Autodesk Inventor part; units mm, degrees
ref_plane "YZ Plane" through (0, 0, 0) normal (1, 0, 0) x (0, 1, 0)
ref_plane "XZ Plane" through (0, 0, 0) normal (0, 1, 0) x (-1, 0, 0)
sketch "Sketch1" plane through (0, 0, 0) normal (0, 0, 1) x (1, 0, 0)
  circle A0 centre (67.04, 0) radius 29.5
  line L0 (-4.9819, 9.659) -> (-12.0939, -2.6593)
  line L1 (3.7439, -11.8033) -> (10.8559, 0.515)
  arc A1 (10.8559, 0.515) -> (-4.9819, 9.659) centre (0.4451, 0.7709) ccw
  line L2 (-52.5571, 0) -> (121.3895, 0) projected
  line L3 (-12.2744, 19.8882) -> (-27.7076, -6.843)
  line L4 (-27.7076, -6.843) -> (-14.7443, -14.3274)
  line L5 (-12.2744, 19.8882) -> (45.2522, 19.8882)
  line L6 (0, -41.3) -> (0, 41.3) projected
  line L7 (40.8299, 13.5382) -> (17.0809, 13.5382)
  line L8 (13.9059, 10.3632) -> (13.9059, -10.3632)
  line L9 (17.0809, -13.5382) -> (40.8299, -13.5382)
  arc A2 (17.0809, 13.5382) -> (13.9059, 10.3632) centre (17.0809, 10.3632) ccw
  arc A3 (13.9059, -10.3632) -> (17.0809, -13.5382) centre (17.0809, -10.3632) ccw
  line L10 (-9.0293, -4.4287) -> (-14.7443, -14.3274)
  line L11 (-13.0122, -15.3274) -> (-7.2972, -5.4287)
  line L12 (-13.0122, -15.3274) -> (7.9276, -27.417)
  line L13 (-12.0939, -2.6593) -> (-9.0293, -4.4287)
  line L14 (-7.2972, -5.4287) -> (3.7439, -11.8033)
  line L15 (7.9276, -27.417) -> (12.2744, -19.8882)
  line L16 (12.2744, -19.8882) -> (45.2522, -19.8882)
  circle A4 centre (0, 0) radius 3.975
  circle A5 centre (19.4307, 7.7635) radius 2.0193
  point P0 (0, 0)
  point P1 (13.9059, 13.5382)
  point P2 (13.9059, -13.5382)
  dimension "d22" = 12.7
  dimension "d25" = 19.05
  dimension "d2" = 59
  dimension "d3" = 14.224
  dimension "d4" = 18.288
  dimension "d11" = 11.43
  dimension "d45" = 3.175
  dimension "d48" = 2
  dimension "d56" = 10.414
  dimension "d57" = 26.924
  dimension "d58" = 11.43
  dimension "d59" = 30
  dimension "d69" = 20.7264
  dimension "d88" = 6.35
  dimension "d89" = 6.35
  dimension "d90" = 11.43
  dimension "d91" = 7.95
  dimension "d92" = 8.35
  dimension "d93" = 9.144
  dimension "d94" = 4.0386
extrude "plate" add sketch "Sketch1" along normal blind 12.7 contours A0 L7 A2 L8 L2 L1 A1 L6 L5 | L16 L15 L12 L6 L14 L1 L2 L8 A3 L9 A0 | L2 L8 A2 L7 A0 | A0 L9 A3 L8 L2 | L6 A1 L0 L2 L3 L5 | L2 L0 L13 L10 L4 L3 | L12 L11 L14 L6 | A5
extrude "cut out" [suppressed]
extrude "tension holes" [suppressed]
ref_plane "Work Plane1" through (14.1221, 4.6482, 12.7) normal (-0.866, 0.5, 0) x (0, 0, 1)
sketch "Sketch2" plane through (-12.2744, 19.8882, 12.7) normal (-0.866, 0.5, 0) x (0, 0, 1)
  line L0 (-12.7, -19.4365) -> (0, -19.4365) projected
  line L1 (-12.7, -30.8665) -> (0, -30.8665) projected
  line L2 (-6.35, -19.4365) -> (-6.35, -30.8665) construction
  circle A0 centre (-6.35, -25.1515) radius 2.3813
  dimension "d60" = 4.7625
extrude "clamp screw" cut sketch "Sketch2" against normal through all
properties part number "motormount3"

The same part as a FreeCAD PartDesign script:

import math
import FreeCAD as App
import Part
import Sketcher
from FreeCAD import Vector
Q = App.Units.Quantity

doc = App.newDocument("Part")
body = doc.addObject("PartDesign::Body", "Body")

sketch1 = body.newObject("Sketcher::SketchObject", "Sketch")
sketch1.AttachmentSupport = (doc.getObject("XY_Plane"), [""])
sketch1.MapMode = "FlatFace"
sketch1.addGeometry(Part.LineSegment(Vector(45.2522, 19.8882, 0), Vector(-12.2744, 19.8882, 0)), False)
sketch1.addGeometry(Part.LineSegment(Vector(-12.2744, 19.8882, 0), Vector(-27.7076, -6.843, 0)), False)
sketch1.addGeometry(Part.LineSegment(Vector(-27.7076, -6.843, 0), Vector(-14.7443, -14.3274, 0)), False)
sketch1.addGeometry(Part.LineSegment(Vector(-14.7443, -14.3274, 0), Vector(-9.0293, -4.4287, 0)), False)
sketch1.addGeometry(Part.LineSegment(Vector(-9.0293, -4.4287, 0), Vector(-12.0939, -2.6593, 0)), False)
sketch1.addGeometry(Part.LineSegment(Vector(-12.0939, -2.6593, 0), Vector(-4.9819, 9.659, 0)), False)
sketch1.addGeometry(Part.ArcOfCircle(Part.Circle(Vector(0.4451, 0.7709, 0), Vector(0, 0, 1), 10.413945), math.radians(-1.408061), math.radians(121.407892)), False)
sketch1.addGeometry(Part.LineSegment(Vector(10.8559, 0.515, 0), Vector(3.7439, -11.8033, 0)), False)
sketch1.addGeometry(Part.LineSegment(Vector(3.7439, -11.8033, 0), Vector(-7.2972, -5.4287, 0)), False)
sketch1.addGeometry(Part.LineSegment(Vector(-7.2972, -5.4287, 0), Vector(-13.0122, -15.3274, 0)), False)
sketch1.addGeometry(Part.LineSegment(Vector(-13.0122, -15.3274, 0), Vector(7.9276, -27.417, 0)), False)
sketch1.addGeometry(Part.LineSegment(Vector(7.9276, -27.417, 0), Vector(12.2744, -19.8882, 0)), False)
sketch1.addGeometry(Part.LineSegment(Vector(12.2744, -19.8882, 0), Vector(45.2522, -19.8882, 0)), False)
sketch1.addGeometry(Part.ArcOfCircle(Part.Circle(Vector(67.04, 0, 0), Vector(0, 0, 1), 29.5), math.radians(137.609746), math.radians(222.390254)), False)
sketch1.addConstraint(Sketcher.Constraint("Coincident", 0, 2, 1, 1))
sketch1.addConstraint(Sketcher.Constraint("Coincident", 1, 2, 2, 1))
sketch1.addConstraint(Sketcher.Constraint("Coincident", 2, 2, 3, 1))
sketch1.addConstraint(Sketcher.Constraint("Coincident", 3, 2, 4, 1))
sketch1.addConstraint(Sketcher.Constraint("Coincident", 4, 2, 5, 1))
sketch1.addConstraint(Sketcher.Constraint("Coincident", 5, 2, 6, 2))
sketch1.addConstraint(Sketcher.Constraint("Coincident", 6, 1, 7, 1))
sketch1.addConstraint(Sketcher.Constraint("Coincident", 7, 2, 8, 1))
sketch1.addConstraint(Sketcher.Constraint("Coincident", 8, 2, 9, 1))
sketch1.addConstraint(Sketcher.Constraint("Coincident", 9, 2, 10, 1))
sketch1.addConstraint(Sketcher.Constraint("Coincident", 10, 2, 11, 1))
sketch1.addConstraint(Sketcher.Constraint("Coincident", 11, 2, 12, 1))
sketch1.addConstraint(Sketcher.Constraint("Coincident", 12, 2, 13, 2))
sketch1.addConstraint(Sketcher.Constraint("Coincident", 13, 1, 0, 1))
sketch1.addConstraint(Sketcher.Constraint("Horizontal", 0))
sketch1.addConstraint(Sketcher.Constraint("Horizontal", 12))
sketch1.addConstraint(Sketcher.Constraint("Symmetric", 0, 2, 11, 2, -1, 1))
sketch1.addConstraint(Sketcher.Constraint("PointOnObject", 13, 3, -1))
sketch1.addConstraint(Sketcher.Constraint("Perpendicular", 1, 2))
sketch1.addConstraint(Sketcher.Constraint("Perpendicular", 2, 3))
sketch1.addConstraint(Sketcher.Constraint("Perpendicular", 3, 4))
sketch1.addConstraint(Sketcher.Constraint("Perpendicular", 4, 5))
sketch1.addConstraint(Sketcher.Constraint("Parallel", 5, 7))
sketch1.addConstraint(Sketcher.Constraint("Perpendicular", 7, 8))
sketch1.addConstraint(Sketcher.Constraint("Perpendicular", 8, 9))
sketch1.addConstraint(Sketcher.Constraint("Perpendicular", 9, 10))
sketch1.addConstraint(Sketcher.Constraint("Perpendicular", 10, 11))
sketch1.addConstraint(Sketcher.Constraint("Equal", 5, 7))
sketch1.addConstraint(Sketcher.Constraint("Equal", 3, 9))
sketch1.addConstraint(Sketcher.Constraint("Radius", 6, Q("0.41 in")))
sketch1.addConstraint(Sketcher.Constraint("Angle", 2, Q("-30 deg")))
sketch1.addConstraint(Sketcher.Constraint("Distance", 3, Q("0.45 in")))
sketch1.addConstraint(Sketcher.Constraint("Distance", 5, Q("0.56 in")))
sketch1.addConstraint(Sketcher.Constraint("Radius", 13, 29.5))
sketch1.addConstraint(Sketcher.Constraint("DistanceY", 6, 1, 5, 2, Q("0.36 in")))
sketch1.addConstraint(Sketcher.Constraint("DistanceY", -1, 1, 0, 2, Q("0.783 in")))
sketch1.addConstraint(Sketcher.Constraint("DistanceX", 2, 2, 6, 3, Q("0.598 in")))
sketch1.addConstraint(Sketcher.Constraint("DistanceX", 0, 2, 0, 1, 57.5266))
sketch1.addConstraint(Sketcher.Constraint("DistanceX", 12, 1, 12, 2, 32.9778))
sketch1.addConstraint(Sketcher.Constraint("DistanceY", 1, 2, -1, 1, Q("0.2694 in")))
sketch1.addConstraint(Sketcher.Constraint("DistanceY", 4, 2, -1, 1, Q("0.1047 in")))
sketch1.addConstraint(Sketcher.Constraint("DistanceX", -1, 1, 6, 1, Q("0.4274 in")))
sketch1.addConstraint(Sketcher.Constraint("DistanceX", 8, 2, -1, 1, Q("0.2873 in")))
pad1 = body.newObject("PartDesign::Pad", "Pad")
pad1.Profile = sketch1
pad1.Length = Q("0.5 in")

sketch2 = body.newObject("Sketcher::SketchObject", "Sketch001")
sketch2.Placement = App.Placement(Vector(-12.2744, 19.8882, 12.7), App.Rotation(Vector(0, 0, 1), Vector(0.5, 0.866025404, 0), Vector(-0.866025404, 0.5, 0), "ZXY"))
sketch2.addGeometry(Part.Circle(Vector(-6.35, -25.1515, 0), Vector(0, 0, 1), 2.3813), False)
sketch2.addConstraint(Sketcher.Constraint("Diameter", 0, Q("0.1875 in")))
sketch2.addConstraint(Sketcher.Constraint("DistanceX", 0, 3, -1, 1, Q("0.25 in")))
sketch2.addConstraint(Sketcher.Constraint("DistanceY", 0, 3, -1, 1, 25.1515))
pocket1 = body.newObject("PartDesign::Pocket", "Pocket")
pocket1.Profile = sketch2
pocket1.Type = "ThroughAll"

doc.recompute()
